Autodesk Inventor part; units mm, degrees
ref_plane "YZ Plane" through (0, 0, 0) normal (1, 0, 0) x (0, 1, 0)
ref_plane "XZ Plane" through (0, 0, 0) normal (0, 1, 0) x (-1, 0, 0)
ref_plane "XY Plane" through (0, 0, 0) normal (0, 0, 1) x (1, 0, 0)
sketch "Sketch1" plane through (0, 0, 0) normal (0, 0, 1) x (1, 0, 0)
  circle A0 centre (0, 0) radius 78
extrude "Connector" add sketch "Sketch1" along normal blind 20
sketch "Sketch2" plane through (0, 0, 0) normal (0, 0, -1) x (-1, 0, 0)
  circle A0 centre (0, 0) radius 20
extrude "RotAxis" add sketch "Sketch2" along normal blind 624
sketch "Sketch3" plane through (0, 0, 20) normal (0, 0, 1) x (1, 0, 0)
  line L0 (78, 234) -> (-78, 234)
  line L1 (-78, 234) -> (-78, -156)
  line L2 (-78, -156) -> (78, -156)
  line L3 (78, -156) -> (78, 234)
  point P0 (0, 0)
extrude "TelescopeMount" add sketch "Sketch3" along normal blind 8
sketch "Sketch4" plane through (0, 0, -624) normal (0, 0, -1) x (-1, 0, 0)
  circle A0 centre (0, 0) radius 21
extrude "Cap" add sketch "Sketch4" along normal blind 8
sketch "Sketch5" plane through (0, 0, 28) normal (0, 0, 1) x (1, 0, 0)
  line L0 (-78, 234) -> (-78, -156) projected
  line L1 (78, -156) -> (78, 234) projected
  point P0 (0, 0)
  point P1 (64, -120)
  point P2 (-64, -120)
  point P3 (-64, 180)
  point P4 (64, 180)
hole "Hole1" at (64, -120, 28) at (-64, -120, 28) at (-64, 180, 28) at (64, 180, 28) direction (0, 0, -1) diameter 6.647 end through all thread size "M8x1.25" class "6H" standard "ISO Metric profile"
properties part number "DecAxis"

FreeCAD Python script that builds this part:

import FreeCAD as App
import Part
import Sketcher

V = App.Vector

doc = App.newDocument("Part")
body = doc.addObject("PartDesign::Body", "Body")

# Sketch on XY plane
sketch1 = body.newObject("Sketcher::SketchObject", "Sketch")
sketch1.AttachmentSupport = (doc.getObject("XY_Plane"), [""])
sketch1.MapMode = "FlatFace"
sketch1.addGeometry(Part.Circle(V(0, 0, 0), V(0, 0, 1), 78), False)
sketch1.addConstraint(Sketcher.Constraint("Coincident", 0, 3, -1, 1))
sketch1.addConstraint(Sketcher.Constraint("Diameter", 0, 156.0))
pad1 = body.newObject("PartDesign::Pad", "Pad")
pad1.Profile = sketch1
pad1.Length = 20

# Sketch on XY plane
sketch2 = body.newObject("Sketcher::SketchObject", "Sketch001")
sketch2.AttachmentSupport = (doc.getObject("XY_Plane"), [""])
sketch2.MapMode = "FlatFace"
sketch2.addGeometry(Part.Circle(V(0, 0, 0), V(0, 0, 1), 20), False)
sketch2.addConstraint(Sketcher.Constraint("Coincident", 0, 3, -1, 1))
sketch2.addConstraint(Sketcher.Constraint("Diameter", 0, 40.0))
pad2 = body.newObject("PartDesign::Pad", "Pad001")
pad2.Profile = sketch2
pad2.Length = 624
pad2.Reversed = True

# Sketch on XY plane
sketch3 = body.newObject("Sketcher::SketchObject", "Sketch002")
sketch3.AttachmentSupport = (doc.getObject("XY_Plane"), [""])
sketch3.MapMode = "FlatFace"
sketch3.AttachmentOffset = App.Placement(V(0, 0, 20), App.Rotation())
sketch3.addGeometry(Part.LineSegment(V(78, -156, 0), V(78, 234, 0)), False)
sketch3.addGeometry(Part.LineSegment(V(78, 234, 0), V(-78, 234, 0)), False)
sketch3.addGeometry(Part.LineSegment(V(-78, 234, 0), V(-78, -156, 0)), False)
sketch3.addGeometry(Part.LineSegment(V(-78, -156, 0), V(78, -156, 0)), False)
sketch3.addConstraint(Sketcher.Constraint("Coincident", 0, 2, 1, 1))
sketch3.addConstraint(Sketcher.Constraint("Coincident", 1, 2, 2, 1))
sketch3.addConstraint(Sketcher.Constraint("Coincident", 2, 2, 3, 1))
sketch3.addConstraint(Sketcher.Constraint("Coincident", 3, 2, 0, 1))
sketch3.addConstraint(Sketcher.Constraint("Vertical", 0))
sketch3.addConstraint(Sketcher.Constraint("Horizontal", 1))
sketch3.addConstraint(Sketcher.Constraint("Vertical", 2))
sketch3.addConstraint(Sketcher.Constraint("Horizontal", 3))
sketch3.addConstraint(Sketcher.Constraint("DistanceX", 1, 2, 1, 1, 156.0))
sketch3.addConstraint(Sketcher.Constraint("DistanceY", 0, 1, 0, 2, 390.0))
sketch3.addConstraint(Sketcher.Constraint("DistanceX", -1, 1, 0, 2, 78.0))
sketch3.addConstraint(Sketcher.Constraint("DistanceY", -1, 1, 0, 2, 234.0))
pad3 = body.newObject("PartDesign::Pad", "Pad002")
pad3.Profile = sketch3
pad3.Length = 8

# Sketch on XY plane
sketch4 = body.newObject("Sketcher::SketchObject", "Sketch003")
sketch4.AttachmentSupport = (doc.getObject("XY_Plane"), [""])
sketch4.MapMode = "FlatFace"
sketch4.AttachmentOffset = App.Placement(V(0, 0, -624), App.Rotation())
sketch4.addGeometry(Part.Circle(V(0, 0, 0), V(0, 0, 1), 21), False)
sketch4.addConstraint(Sketcher.Constraint("Coincident", 0, 3, -1, 1))
sketch4.addConstraint(Sketcher.Constraint("Diameter", 0, 42.0))
pad4 = body.newObject("PartDesign::Pad", "Pad003")
pad4.Profile = sketch4
pad4.Length = 8
pad4.Reversed = True

# Sketch on XY plane
sketch5 = body.newObject("Sketcher::SketchObject", "Sketch004")
sketch5.AttachmentSupport = (doc.getObject("XY_Plane"), [""])
sketch5.MapMode = "FlatFace"
sketch5.AttachmentOffset = App.Placement(V(0, 0, 28), App.Rotation())
sketch5.addGeometry(Part.Circle(V(64, -120, 0), V(0, 0, 1), 3.3), False)
sketch5.addGeometry(Part.Circle(V(-64, -120, 0), V(0, 0, 1), 3.3), False)
sketch5.addGeometry(Part.Circle(V(-64, 180, 0), V(0, 0, 1), 3.3), False)
sketch5.addGeometry(Part.Circle(V(64, 180, 0), V(0, 0, 1), 3.3), False)
sketch5.addConstraint(Sketcher.Constraint("Equal", 0, 1))
sketch5.addConstraint(Sketcher.Constraint("Equal", 1, 2))
sketch5.addConstraint(Sketcher.Constraint("Equal", 2, 3))
sketch5.addConstraint(Sketcher.Constraint("Symmetric", 0, 3, 1, 3, -2))
sketch5.addConstraint(Sketcher.Constraint("Symmetric", 2, 3, 3, 3, -2))
sketch5.addConstraint(Sketcher.Constraint("Vertical", 1, 3, 2, 3))
sketch5.addConstraint(Sketcher.Constraint("Diameter", 0, 6.647))
sketch5.addConstraint(Sketcher.Constraint("DistanceX", -1, 1, 0, 3, 64.0))
sketch5.addConstraint(Sketcher.Constraint("DistanceY", 0, 3, -1, 1, 120.0))
sketch5.addConstraint(Sketcher.Constraint("DistanceY", -1, 1, 2, 3, 180.0))
doc.recompute()
hole = body.newObject("PartDesign::Hole", "Hole")
hole.Profile = sketch5
hole.ThreadType = "None"
hole.Diameter = 6.647
hole.DepthType = "ThroughAll"

doc.recompute()
